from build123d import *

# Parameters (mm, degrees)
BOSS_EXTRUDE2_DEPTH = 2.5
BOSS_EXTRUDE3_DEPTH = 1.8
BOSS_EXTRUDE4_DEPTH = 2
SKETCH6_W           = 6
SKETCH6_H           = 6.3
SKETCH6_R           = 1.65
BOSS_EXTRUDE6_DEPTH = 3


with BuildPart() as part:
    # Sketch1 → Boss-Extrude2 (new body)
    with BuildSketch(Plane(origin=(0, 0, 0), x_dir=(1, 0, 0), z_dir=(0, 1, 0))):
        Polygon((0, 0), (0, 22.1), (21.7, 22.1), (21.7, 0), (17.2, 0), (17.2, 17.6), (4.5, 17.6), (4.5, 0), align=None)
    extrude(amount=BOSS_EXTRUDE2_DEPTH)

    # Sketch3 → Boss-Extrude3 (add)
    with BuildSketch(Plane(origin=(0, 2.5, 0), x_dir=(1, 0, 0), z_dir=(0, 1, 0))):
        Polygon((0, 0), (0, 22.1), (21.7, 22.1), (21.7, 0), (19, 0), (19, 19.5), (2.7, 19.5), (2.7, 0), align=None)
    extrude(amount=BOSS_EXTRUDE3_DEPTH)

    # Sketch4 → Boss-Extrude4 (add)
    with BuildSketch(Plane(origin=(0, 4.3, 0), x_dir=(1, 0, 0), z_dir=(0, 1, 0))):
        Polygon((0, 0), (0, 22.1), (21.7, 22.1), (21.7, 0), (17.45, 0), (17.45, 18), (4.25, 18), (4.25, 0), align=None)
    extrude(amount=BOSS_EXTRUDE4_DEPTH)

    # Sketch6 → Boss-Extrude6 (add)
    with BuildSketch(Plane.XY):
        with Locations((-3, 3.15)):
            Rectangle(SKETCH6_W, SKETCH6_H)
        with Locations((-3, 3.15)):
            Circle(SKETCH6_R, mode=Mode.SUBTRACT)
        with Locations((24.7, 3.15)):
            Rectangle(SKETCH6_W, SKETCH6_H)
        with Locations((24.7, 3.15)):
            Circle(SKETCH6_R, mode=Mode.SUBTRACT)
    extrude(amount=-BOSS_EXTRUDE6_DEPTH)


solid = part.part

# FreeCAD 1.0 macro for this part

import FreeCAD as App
import Part
import Sketcher

V = App.Vector
Q = App.Units.Quantity


def add_polygon(sketch, points):
    """Adds a closed chain of lines whose ends are joined by coincident constraints."""
    first, n = sketch.GeometryCount, len(points)
    for a, b in zip(points, points[1:] + points[:1]):
        sketch.addGeometry(Part.LineSegment(App.Vector(*a, 0), App.Vector(*b, 0)), False)
    for i in range(n):
        sketch.addConstraint(Sketcher.Constraint("Coincident", first + i, 2, first + (i + 1) % n, 1))

doc = App.newDocument("Part")
body = doc.addObject("PartDesign::Body", "Body")

sketch1 = body.newObject("Sketcher::SketchObject", "Sketch")
sketch1.AttachmentSupport = (doc.getObject("XZ_Plane"), [""])
sketch1.MapMode = "FlatFace"
add_polygon(sketch1, [(0, -22.1), (0, 0), (4.5, 0), (4.5, -17.6), (17.2, -17.6), (17.2, 0), (21.7, 0), (21.7, -22.1)])
sketch1.addConstraint([
    Sketcher.Constraint("Vertical", 0),
    Sketcher.Constraint("Horizontal", 1),
    Sketcher.Constraint("Vertical", 2),
    Sketcher.Constraint("Horizontal", 3),
    Sketcher.Constraint("Vertical", 4),
    Sketcher.Constraint("Horizontal", 5),
    Sketcher.Constraint("Vertical", 6),
    Sketcher.Constraint("Horizontal", 7),
    Sketcher.Constraint("Coincident", 0, 2, -1, 1),
    Sketcher.Constraint("PointOnObject", 4, 2, -1),
    Sketcher.Constraint("Equal", 1, 5),
    Sketcher.Constraint("DistanceX", 1, 1, 1, 2, Q("4.5 mm")),
    Sketcher.Constraint("DistanceX", 3, 1, 3, 2, Q("12.7 mm")),
    Sketcher.Constraint("DistanceY", 0, 1, 0, 2, Q("22.1 mm")),
    Sketcher.Constraint("DistanceY", 2, 2, 2, 1, Q("17.6 mm")),
])
pad1 = body.newObject("PartDesign::Pad", "Pad")
pad1.Profile = sketch1
pad1.Length = 2.5
pad1.Reversed = True

sketch2 = body.newObject("Sketcher::SketchObject", "Sketch001")
sketch2.AttachmentSupport = (doc.getObject("XZ_Plane"), [""])
sketch2.MapMode = "FlatFace"
sketch2.AttachmentOffset = App.Placement(V(0, 0, -2.5), App.Rotation())
add_polygon(sketch2, [(0, -22.1), (0, 0), (2.7, 0), (2.7, -19.5), (19, -19.5), (19, 0), (21.7, 0), (21.7, -22.1)])
sketch2.addConstraint([
    Sketcher.Constraint("Vertical", 0),
    Sketcher.Constraint("Horizontal", 1),
    Sketcher.Constraint("Vertical", 2),
    Sketcher.Constraint("Horizontal", 3),
    Sketcher.Constraint("Vertical", 4),
    Sketcher.Constraint("Horizontal", 5),
    Sketcher.Constraint("Vertical", 6),
    Sketcher.Constraint("Horizontal", 7),
    Sketcher.Constraint("Coincident", 0, 2, -1, 1),
    Sketcher.Constraint("PointOnObject", 4, 2, -1),
    Sketcher.Constraint("Equal", 1, 5),
    Sketcher.Constraint("DistanceX", 1, 1, 1, 2, Q("2.7 mm")),
    Sketcher.Constraint("DistanceX", 3, 1, 3, 2, Q("16.3 mm")),
    Sketcher.Constraint("DistanceY", 0, 1, 0, 2, Q("22.1 mm")),
    Sketcher.Constraint("DistanceY", 2, 2, 2, 1, Q("19.5 mm")),
])
pad2 = body.newObject("PartDesign::Pad", "Pad001")
pad2.Profile = sketch2
pad2.Length = 1.8
pad2.Reversed = True

sketch3 = body.newObject("Sketcher::SketchObject", "Sketch002")
sketch3.AttachmentSupport = (doc.getObject("XZ_Plane"), [""])
sketch3.MapMode = "FlatFace"
sketch3.AttachmentOffset = App.Placement(V(0, 0, -4.3), App.Rotation())
add_polygon(sketch3, [(0, -22.1), (0, 0), (4.25, 0), (4.25, -18), (17.45, -18), (17.45, 0), (21.7, 0), (21.7, -22.1)])
sketch3.addConstraint([
    Sketcher.Constraint("Vertical", 0),
    Sketcher.Constraint("Horizontal", 1),
    Sketcher.Constraint("Vertical", 2),
    Sketcher.Constraint("Horizontal", 3),
    Sketcher.Constraint("Vertical", 4),
    Sketcher.Constraint("Horizontal", 5),
    Sketcher.Constraint("Vertical", 6),
    Sketcher.Constraint("Horizontal", 7),
    Sketcher.Constraint("Coincident", 0, 2, -1, 1),
    Sketcher.Constraint("PointOnObject", 4, 2, -1),
    Sketcher.Constraint("Equal", 1, 5),
    Sketcher.Constraint("DistanceY", 2, 2, 2, 1, Q("18 mm")),
    Sketcher.Constraint("DistanceX", 3, 1, 3, 2, Q("13.2 mm")),
    Sketcher.Constraint("DistanceX", 7, 2, 7, 1, Q("21.7 mm")),
    Sketcher.Constraint("DistanceY", 0, 1, 0, 2, Q("22.1 mm")),
])
pad3 = body.newObject("PartDesign::Pad", "Pad002")
pad3.Profile = sketch3
pad3.Length = 2
pad3.Reversed = True

sketch4 = body.newObject("Sketcher::SketchObject", "Sketch003")
sketch4.AttachmentSupport = (doc.getObject("XY_Plane"), [""])
sketch4.MapMode = "FlatFace"
add_polygon(sketch4, [(-6, 6.3), (-6, 0), (0, 0), (0, 6.3)])
sketch4.addGeometry(Part.Circle(V(-3, 3.15, 0), V(0, 0, 1), 1.65), False)
add_polygon(sketch4, [(21.7, 6.3), (21.7, 0), (27.7, 0), (27.7, 6.3)])
sketch4.addGeometry(Part.Circle(V(24.7, 3.15, 0), V(0, 0, 1), 1.65), False)
sketch4.addConstraint([
    Sketcher.Constraint("Vertical", 0),
    Sketcher.Constraint("Horizontal", 1),
    Sketcher.Constraint("Vertical", 2),
    Sketcher.Constraint("Horizontal", 3),
    Sketcher.Constraint("Vertical", 5),
    Sketcher.Constraint("Horizontal", 6),
    Sketcher.Constraint("Vertical", 7),
    Sketcher.Constraint("Horizontal", 8),
    Sketcher.Constraint("Coincident", 1, 2, -1, 1),
    Sketcher.Constraint("Equal", 4, 9),
    Sketcher.Constraint("PointOnObject", 5, 2, -1),
    Sketcher.Constraint("Horizontal", 4, 3, 9, 3),
    Sketcher.Constraint("Horizontal", 3, 2, 7, 2),
    Sketcher.Constraint("Equal", 3, 6),
    Sketcher.Constraint("Diameter", 4, Q("3.3 mm")),
    Sketcher.Constraint("DistanceX", 1, 1, 1, 2, Q("6 mm")),
    Sketcher.Constraint("DistanceY", 0, 2, 0, 1, Q("6.3 mm")),
    Sketcher.Constraint("DistanceX", 4, 3, -1, 1, Q("3 mm")),
    Sketcher.Constraint("DistanceX", 5, 2, 9, 3, Q("3 mm")),
    Sketcher.Constraint("DistanceX", -1, 1, 9, 3, Q("24.7 mm")),
    Sketcher.Constraint("DistanceY", -1, 1, 4, 3, Q("3.15 mm")),
])
pad4 = body.newObject("PartDesign::Pad", "Pad003")
pad4.Profile = sketch4
pad4.Length = 3
pad4.Reversed = True

doc.recompute()
